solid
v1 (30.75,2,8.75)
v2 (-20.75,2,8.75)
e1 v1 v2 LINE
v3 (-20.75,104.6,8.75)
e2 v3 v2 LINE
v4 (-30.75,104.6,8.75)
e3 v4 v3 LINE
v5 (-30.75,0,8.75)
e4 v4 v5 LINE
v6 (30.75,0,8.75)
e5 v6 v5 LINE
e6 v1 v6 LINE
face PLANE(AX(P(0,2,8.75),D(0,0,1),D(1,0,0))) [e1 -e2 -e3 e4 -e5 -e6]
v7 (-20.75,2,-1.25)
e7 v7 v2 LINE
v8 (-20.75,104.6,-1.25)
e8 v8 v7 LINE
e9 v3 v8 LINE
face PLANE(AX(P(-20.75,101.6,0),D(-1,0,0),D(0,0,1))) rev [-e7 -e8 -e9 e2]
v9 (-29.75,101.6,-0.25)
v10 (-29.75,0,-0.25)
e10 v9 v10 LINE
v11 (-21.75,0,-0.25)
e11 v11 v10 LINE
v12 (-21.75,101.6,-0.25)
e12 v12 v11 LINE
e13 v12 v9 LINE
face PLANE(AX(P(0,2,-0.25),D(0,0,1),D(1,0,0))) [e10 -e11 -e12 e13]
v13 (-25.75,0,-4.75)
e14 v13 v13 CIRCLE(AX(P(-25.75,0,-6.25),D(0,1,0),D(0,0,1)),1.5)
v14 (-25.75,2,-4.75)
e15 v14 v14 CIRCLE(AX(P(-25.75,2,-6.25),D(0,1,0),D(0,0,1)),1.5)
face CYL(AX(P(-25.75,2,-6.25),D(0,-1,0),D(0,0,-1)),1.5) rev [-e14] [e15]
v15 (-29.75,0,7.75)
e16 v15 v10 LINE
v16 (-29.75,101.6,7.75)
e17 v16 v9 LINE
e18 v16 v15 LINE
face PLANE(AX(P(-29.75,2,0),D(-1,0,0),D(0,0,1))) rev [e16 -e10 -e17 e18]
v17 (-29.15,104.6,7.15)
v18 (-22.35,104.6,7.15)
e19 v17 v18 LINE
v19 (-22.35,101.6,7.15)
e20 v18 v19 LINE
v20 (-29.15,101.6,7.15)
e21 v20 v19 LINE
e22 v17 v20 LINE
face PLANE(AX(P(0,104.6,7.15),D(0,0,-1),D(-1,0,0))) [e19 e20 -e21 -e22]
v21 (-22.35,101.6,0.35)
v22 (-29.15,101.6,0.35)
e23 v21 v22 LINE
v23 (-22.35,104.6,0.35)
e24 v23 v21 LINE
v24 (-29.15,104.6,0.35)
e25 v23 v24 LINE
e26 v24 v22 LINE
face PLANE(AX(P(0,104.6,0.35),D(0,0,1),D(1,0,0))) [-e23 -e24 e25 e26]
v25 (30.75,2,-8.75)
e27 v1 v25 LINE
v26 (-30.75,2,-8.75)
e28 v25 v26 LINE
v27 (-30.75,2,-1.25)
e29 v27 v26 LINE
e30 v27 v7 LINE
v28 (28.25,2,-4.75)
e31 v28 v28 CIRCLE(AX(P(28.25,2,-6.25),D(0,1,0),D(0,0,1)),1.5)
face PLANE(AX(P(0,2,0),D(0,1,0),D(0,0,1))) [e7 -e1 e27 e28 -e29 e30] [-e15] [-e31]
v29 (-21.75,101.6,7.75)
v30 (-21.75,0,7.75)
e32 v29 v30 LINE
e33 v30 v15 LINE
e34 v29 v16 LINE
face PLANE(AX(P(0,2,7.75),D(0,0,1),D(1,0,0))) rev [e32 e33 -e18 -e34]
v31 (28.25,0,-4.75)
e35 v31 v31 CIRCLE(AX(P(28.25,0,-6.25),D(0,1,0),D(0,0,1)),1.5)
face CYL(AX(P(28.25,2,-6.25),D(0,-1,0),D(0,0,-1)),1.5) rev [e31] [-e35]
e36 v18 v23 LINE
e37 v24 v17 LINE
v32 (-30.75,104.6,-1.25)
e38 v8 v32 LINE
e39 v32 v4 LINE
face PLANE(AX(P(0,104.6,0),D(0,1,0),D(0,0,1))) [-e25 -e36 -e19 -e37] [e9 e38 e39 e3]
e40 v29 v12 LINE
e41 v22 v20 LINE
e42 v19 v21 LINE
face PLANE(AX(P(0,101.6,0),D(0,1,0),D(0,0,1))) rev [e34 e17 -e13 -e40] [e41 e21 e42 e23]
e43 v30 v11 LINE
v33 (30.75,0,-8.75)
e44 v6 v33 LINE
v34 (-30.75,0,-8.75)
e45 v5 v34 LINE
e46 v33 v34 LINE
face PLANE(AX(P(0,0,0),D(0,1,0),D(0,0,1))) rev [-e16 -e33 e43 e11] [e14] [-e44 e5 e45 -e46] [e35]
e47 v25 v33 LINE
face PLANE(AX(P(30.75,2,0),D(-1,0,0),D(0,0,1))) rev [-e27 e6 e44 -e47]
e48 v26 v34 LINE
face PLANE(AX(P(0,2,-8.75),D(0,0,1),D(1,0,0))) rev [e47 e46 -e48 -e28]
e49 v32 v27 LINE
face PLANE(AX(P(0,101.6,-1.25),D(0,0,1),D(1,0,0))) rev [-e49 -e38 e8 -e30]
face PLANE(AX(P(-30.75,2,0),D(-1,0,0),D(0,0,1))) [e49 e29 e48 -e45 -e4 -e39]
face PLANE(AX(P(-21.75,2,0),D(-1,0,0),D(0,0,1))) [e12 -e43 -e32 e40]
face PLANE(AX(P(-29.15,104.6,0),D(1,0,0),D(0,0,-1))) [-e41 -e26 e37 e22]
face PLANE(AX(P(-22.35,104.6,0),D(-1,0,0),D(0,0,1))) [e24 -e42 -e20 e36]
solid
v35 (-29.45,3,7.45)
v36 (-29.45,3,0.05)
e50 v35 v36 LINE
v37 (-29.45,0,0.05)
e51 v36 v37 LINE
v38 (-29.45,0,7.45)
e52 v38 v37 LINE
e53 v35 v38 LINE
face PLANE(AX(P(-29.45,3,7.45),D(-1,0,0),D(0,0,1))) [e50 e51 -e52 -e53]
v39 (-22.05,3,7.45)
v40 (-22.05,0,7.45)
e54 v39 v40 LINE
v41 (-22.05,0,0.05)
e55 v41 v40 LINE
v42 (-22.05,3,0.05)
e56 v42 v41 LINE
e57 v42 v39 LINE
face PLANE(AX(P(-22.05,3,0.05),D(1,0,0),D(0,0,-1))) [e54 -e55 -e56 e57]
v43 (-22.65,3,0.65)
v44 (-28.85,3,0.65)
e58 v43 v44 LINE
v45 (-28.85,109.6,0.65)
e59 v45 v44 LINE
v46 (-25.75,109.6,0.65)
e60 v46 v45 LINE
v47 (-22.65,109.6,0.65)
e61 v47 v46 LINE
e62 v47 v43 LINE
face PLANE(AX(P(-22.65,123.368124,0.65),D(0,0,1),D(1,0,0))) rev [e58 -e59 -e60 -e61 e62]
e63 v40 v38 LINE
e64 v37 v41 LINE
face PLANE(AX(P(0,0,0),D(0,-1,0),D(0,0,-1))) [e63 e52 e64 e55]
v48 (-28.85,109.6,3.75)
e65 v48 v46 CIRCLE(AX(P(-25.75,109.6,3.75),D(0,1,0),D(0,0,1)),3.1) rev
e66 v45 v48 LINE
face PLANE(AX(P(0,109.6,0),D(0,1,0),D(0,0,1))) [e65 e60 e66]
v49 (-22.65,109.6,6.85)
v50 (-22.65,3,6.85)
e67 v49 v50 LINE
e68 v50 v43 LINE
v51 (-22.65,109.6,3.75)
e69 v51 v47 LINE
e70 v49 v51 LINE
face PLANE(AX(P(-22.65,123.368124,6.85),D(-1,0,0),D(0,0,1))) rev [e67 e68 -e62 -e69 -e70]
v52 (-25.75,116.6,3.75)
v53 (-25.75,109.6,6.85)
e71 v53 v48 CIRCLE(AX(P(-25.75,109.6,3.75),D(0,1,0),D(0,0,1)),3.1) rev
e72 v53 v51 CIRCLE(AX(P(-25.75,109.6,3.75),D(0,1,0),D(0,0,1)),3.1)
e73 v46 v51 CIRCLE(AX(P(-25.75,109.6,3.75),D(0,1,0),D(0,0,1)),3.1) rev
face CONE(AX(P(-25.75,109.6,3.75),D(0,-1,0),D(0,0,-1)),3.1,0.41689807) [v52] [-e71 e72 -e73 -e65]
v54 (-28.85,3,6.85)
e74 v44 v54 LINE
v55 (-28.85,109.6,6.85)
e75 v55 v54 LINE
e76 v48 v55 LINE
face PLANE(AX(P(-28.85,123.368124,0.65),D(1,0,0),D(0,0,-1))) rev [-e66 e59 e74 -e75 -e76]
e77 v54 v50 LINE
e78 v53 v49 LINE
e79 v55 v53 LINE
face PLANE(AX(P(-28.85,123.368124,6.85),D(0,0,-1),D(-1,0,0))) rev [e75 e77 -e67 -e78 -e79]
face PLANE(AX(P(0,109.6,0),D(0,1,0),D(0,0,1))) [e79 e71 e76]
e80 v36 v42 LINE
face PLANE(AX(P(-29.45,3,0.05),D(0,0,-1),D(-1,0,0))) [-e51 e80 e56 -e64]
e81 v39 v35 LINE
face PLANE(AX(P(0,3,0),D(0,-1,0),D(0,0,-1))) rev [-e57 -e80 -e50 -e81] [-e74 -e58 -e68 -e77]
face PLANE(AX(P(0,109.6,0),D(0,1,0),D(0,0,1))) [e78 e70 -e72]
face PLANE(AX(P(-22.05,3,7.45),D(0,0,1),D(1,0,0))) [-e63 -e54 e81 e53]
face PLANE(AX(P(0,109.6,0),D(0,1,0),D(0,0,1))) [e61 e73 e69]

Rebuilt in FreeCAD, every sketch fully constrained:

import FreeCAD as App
import Part
import Sketcher
Q = App.Units.Quantity

doc = App.newDocument("Part")
body = doc.addObject("PartDesign::Body", "Body")

# Sketch on XZ plane
sketch1 = doc.addObject("Sketcher::SketchObject", "Sketch")
body.addObject(sketch1)
sketch1.AttachmentSupport = (doc.XZ_Plane, [""])
sketch1.MapMode = "FlatFace"
sketch1.addGeometry([
    Part.LineSegment(App.Vector(30.75, 8.75, 0), App.Vector(30.75, -8.75, 0)),  # 0
    Part.LineSegment(App.Vector(30.75, -8.75, 0), App.Vector(-30.75, -8.75, 0)),  # 1
    Part.LineSegment(App.Vector(-30.75, -8.75, 0), App.Vector(-30.75, 8.75, 0)),  # 2
    Part.LineSegment(App.Vector(-30.75, 8.75, 0), App.Vector(30.75, 8.75, 0)),  # 3
    Part.Circle(App.Vector(-25.75, -6.25, 0), App.Vector(0, 0, 1), 1.5),  # 4
    Part.Circle(App.Vector(28.25, -6.25, 0), App.Vector(0, 0, 1), 1.5),  # 5
    Part.LineSegment(App.Vector(-29.75, -0.25, 0), App.Vector(-21.75, -0.25, 0)),  # 6
    Part.LineSegment(App.Vector(-21.75, -0.25, 0), App.Vector(-21.75, 7.75, 0)),  # 7
    Part.LineSegment(App.Vector(-21.75, 7.75, 0), App.Vector(-29.75, 7.75, 0)),  # 8
    Part.LineSegment(App.Vector(-29.75, 7.75, 0), App.Vector(-29.75, -0.25, 0)),  # 9
], False)
sketch1.addConstraint([
    Sketcher.Constraint("Coincident", 0, 2, 1, 1),
    Sketcher.Constraint("Coincident", 1, 2, 2, 1),
    Sketcher.Constraint("Coincident", 2, 2, 3, 1),
    Sketcher.Constraint("Coincident", 3, 2, 0, 1),
    Sketcher.Constraint("Coincident", 6, 2, 7, 1),
    Sketcher.Constraint("Coincident", 7, 2, 8, 1),
    Sketcher.Constraint("Coincident", 8, 2, 9, 1),
    Sketcher.Constraint("Coincident", 9, 2, 6, 1),
    Sketcher.Constraint("Vertical", 0),
    Sketcher.Constraint("Horizontal", 1),
    Sketcher.Constraint("Vertical", 2),
    Sketcher.Constraint("Horizontal", 3),
    Sketcher.Constraint("Horizontal", 6),
    Sketcher.Constraint("Vertical", 7),
    Sketcher.Constraint("Horizontal", 8),
    Sketcher.Constraint("Vertical", 9),
    Sketcher.Constraint("Equal", 4, 5),
    Sketcher.Constraint("Symmetric", 0, 2, 2, 2, -1, 1),
    Sketcher.Constraint("Horizontal", 4, 3, 5, 3),
    Sketcher.Constraint("Equal", 8, 7),
    Sketcher.Constraint("Diameter", 4, Q("3 mm")),
    Sketcher.Constraint("DistanceX", 6, 1, 6, 2, Q("8 mm")),
    Sketcher.Constraint("DistanceX", 1, 2, 1, 1, Q("61.5 mm")),
    Sketcher.Constraint("DistanceY", 0, 2, 0, 1, Q("17.5 mm")),
    Sketcher.Constraint("DistanceX", 4, 3, 5, 3, Q("54 mm")),
    Sketcher.Constraint("DistanceX", 1, 2, 4, 3, Q("5 mm")),
    Sketcher.Constraint("DistanceY", 4, 3, 2, 2, Q("15 mm")),
    Sketcher.Constraint("DistanceX", 4, 3, 6, 2, Q("4 mm")),
    Sketcher.Constraint("DistanceY", 4, 3, 6, 2, Q("6 mm")),
])
pad1 = doc.addObject("PartDesign::Pad", "Pad")
body.addObject(pad1)
pad1.Profile = sketch1
pad1.Length = 2
pad1.Reversed = True

# Sketch on XZ plane
sketch2 = doc.addObject("Sketcher::SketchObject", "Sketch001")
body.addObject(sketch2)
sketch2.AttachmentSupport = (doc.XZ_Plane, [""])
sketch2.MapMode = "FlatFace"
sketch2.addGeometry([
    Part.LineSegment(App.Vector(-30.75, -1.25, 0), App.Vector(-30.75, 8.75, 0)),  # 0
    Part.LineSegment(App.Vector(-30.75, 8.75, 0), App.Vector(-20.75, 8.75, 0)),  # 1
    Part.LineSegment(App.Vector(-20.75, 8.75, 0), App.Vector(-20.75, -1.25, 0)),  # 2
    Part.LineSegment(App.Vector(-20.75, -1.25, 0), App.Vector(-30.75, -1.25, 0)),  # 3
    Part.LineSegment(App.Vector(-21.75, 7.75, 0), App.Vector(-29.75, 7.75, 0)),  # 4
    Part.LineSegment(App.Vector(-29.75, 7.75, 0), App.Vector(-29.75, -0.25, 0)),  # 5
    Part.LineSegment(App.Vector(-29.75, -0.25, 0), App.Vector(-21.75, -0.25, 0)),  # 6
    Part.LineSegment(App.Vector(-21.75, -0.25, 0), App.Vector(-21.75, 7.75, 0)),  # 7
], False)
sketch2.addConstraint([
    Sketcher.Constraint("Coincident", 0, 2, 1, 1),
    Sketcher.Constraint("Coincident", 1, 2, 2, 1),
    Sketcher.Constraint("Coincident", 2, 2, 3, 1),
    Sketcher.Constraint("Coincident", 3, 2, 0, 1),
    Sketcher.Constraint("Coincident", 4, 2, 5, 1),
    Sketcher.Constraint("Coincident", 5, 2, 6, 1),
    Sketcher.Constraint("Coincident", 6, 2, 7, 1),
    Sketcher.Constraint("Coincident", 7, 2, 4, 1),
    Sketcher.Constraint("Vertical", 0),
    Sketcher.Constraint("Horizontal", 1),
    Sketcher.Constraint("Vertical", 2),
    Sketcher.Constraint("Horizontal", 3),
    Sketcher.Constraint("Horizontal", 4),
    Sketcher.Constraint("Vertical", 5),
    Sketcher.Constraint("Horizontal", 6),
    Sketcher.Constraint("Vertical", 7),
    Sketcher.Constraint("Equal", 3, 0),
    Sketcher.Constraint("Equal", 6, 5),
    Sketcher.Constraint("DistanceX", 1, 1, 1, 2, Q("10 mm")),
    Sketcher.Constraint("DistanceX", 4, 2, 4, 1, Q("8 mm")),
    Sketcher.Constraint("DistanceX", 0, 2, 4, 2, Q("1 mm")),
    Sketcher.Constraint("DistanceY", 4, 2, 0, 2, Q("1 mm")),
    Sketcher.Constraint("DistanceX", 0, 2, -1, 1, Q("30.75 mm")),
    Sketcher.Constraint("DistanceY", -1, 1, 0, 2, Q("8.75 mm")),
])
pad2 = doc.addObject("PartDesign::Pad", "Pad001")
body.addObject(pad2)
pad2.Profile = sketch2
pad2.Length = 101.6
pad2.Reversed = True

# Sketch on XZ plane
sketch3 = doc.addObject("Sketcher::SketchObject", "Sketch002")
body.addObject(sketch3)
sketch3.AttachmentSupport = (doc.XZ_Plane, [""])
sketch3.MapMode = "FlatFace"
sketch3.AttachmentOffset = App.Placement(App.Vector(0, 0, -101.6), App.Rotation())
sketch3.addGeometry([
    Part.LineSegment(App.Vector(-30.75, -1.25, 0), App.Vector(-30.75, 8.75, 0)),  # 0
    Part.LineSegment(App.Vector(-30.75, 8.75, 0), App.Vector(-20.75, 8.75, 0)),  # 1
    Part.LineSegment(App.Vector(-20.75, 8.75, 0), App.Vector(-20.75, -1.25, 0)),  # 2
    Part.LineSegment(App.Vector(-20.75, -1.25, 0), App.Vector(-30.75, -1.25, 0)),  # 3
    Part.LineSegment(App.Vector(-22.35, 7.15, 0), App.Vector(-29.15, 7.15, 0)),  # 4
    Part.LineSegment(App.Vector(-29.15, 7.15, 0), App.Vector(-29.15, 0.35, 0)),  # 5
    Part.LineSegment(App.Vector(-29.15, 0.35, 0), App.Vector(-22.35, 0.35, 0)),  # 6
    Part.LineSegment(App.Vector(-22.35, 0.35, 0), App.Vector(-22.35, 7.15, 0)),  # 7
], False)
sketch3.addConstraint([
    Sketcher.Constraint("Coincident", 0, 2, 1, 1),
    Sketcher.Constraint("Coincident", 1, 2, 2, 1),
    Sketcher.Constraint("Coincident", 2, 2, 3, 1),
    Sketcher.Constraint("Coincident", 3, 2, 0, 1),
    Sketcher.Constraint("Coincident", 4, 2, 5, 1),
    Sketcher.Constraint("Coincident", 5, 2, 6, 1),
    Sketcher.Constraint("Coincident", 6, 2, 7, 1),
    Sketcher.Constraint("Coincident", 7, 2, 4, 1),
    Sketcher.Constraint("Vertical", 0),
    Sketcher.Constraint("Horizontal", 1),
    Sketcher.Constraint("Vertical", 2),
    Sketcher.Constraint("Horizontal", 3),
    Sketcher.Constraint("Horizontal", 4),
    Sketcher.Constraint("Vertical", 5),
    Sketcher.Constraint("Horizontal", 6),
    Sketcher.Constraint("Vertical", 7),
    Sketcher.Constraint("Equal", 3, 0),
    Sketcher.Constraint("Equal", 6, 5),
    Sketcher.Constraint("DistanceX", 1, 1, 1, 2, Q("10 mm")),
    Sketcher.Constraint("DistanceX", 4, 2, 4, 1, Q("6.8 mm")),
    Sketcher.Constraint("DistanceX", 0, 2, 4, 2, Q("1.6 mm")),
    Sketcher.Constraint("DistanceY", 4, 2, 0, 2, Q("1.6 mm")),
    Sketcher.Constraint("DistanceX", 0, 2, -1, 1, Q("30.75 mm")),
    Sketcher.Constraint("DistanceY", -1, 1, 0, 2, Q("8.75 mm")),
])
pad3 = doc.addObject("PartDesign::Pad", "Pad002")
body.addObject(pad3)
pad3.Profile = sketch3
pad3.Length = 3
pad3.Reversed = True
body2 = doc.addObject("PartDesign::Body", "Body001")

# Sketch on XZ plane
sketch4 = doc.addObject("Sketcher::SketchObject", "Sketch003")
body2.addObject(sketch4)
sketch4.AttachmentSupport = (doc.getObject("XZ_Plane001"), [""])
sketch4.MapMode = "FlatFace"
sketch4.addGeometry([
    Part.LineSegment(App.Vector(-29.45, 7.45, 0), App.Vector(-29.45, 0.05, 0)),
    Part.LineSegment(App.Vector(-29.45, 0.05, 0), App.Vector(-22.05, 0.05, 0)),
    Part.LineSegment(App.Vector(-22.05, 0.05, 0), App.Vector(-22.05, 7.45, 0)),
    Part.LineSegment(App.Vector(-22.05, 7.45, 0), App.Vector(-29.45, 7.45, 0)),
], False)
sketch4.addConstraint([
    Sketcher.Constraint("Coincident", 0, 2, 1, 1),
    Sketcher.Constraint("Coincident", 1, 2, 2, 1),
    Sketcher.Constraint("Coincident", 2, 2, 3, 1),
    Sketcher.Constraint("Coincident", 3, 2, 0, 1),
    Sketcher.Constraint("Vertical", 0),
    Sketcher.Constraint("Horizontal", 1),
    Sketcher.Constraint("Vertical", 2),
    Sketcher.Constraint("Horizontal", 3),
    Sketcher.Constraint("Equal", 3, 0),
    Sketcher.Constraint("DistanceX", 1, 1, 1, 2, Q("7.4 mm")),
    Sketcher.Constraint("DistanceX", 0, 2, -1, 1, Q("29.45 mm")),
    Sketcher.Constraint("DistanceY", -1, 1, 0, 2, Q("0.05 mm")),
])
pad4 = doc.addObject("PartDesign::Pad", "Pad003")
body2.addObject(pad4)
pad4.Profile = sketch4
pad4.Length = 3
pad4.Reversed = True

# Sketch on XZ plane
sketch5 = doc.addObject("Sketcher::SketchObject", "Sketch004")
body2.addObject(sketch5)
sketch5.AttachmentSupport = (doc.getObject("XZ_Plane001"), [""])
sketch5.MapMode = "FlatFace"
sketch5.AttachmentOffset = App.Placement(App.Vector(0, 0, -3), App.Rotation())
sketch5.addGeometry([
    Part.LineSegment(App.Vector(-28.85, 0.65, 0), App.Vector(-28.85, 6.85, 0)),
    Part.LineSegment(App.Vector(-28.85, 6.85, 0), App.Vector(-22.65, 6.85, 0)),
    Part.LineSegment(App.Vector(-22.65, 6.85, 0), App.Vector(-22.65, 0.65, 0)),
    Part.LineSegment(App.Vector(-22.65, 0.65, 0), App.Vector(-28.85, 0.65, 0)),
], False)
sketch5.addConstraint([
    Sketcher.Constraint("Coincident", 0, 2, 1, 1),
    Sketcher.Constraint("Coincident", 1, 2, 2, 1),
    Sketcher.Constraint("Coincident", 2, 2, 3, 1),
    Sketcher.Constraint("Coincident", 3, 2, 0, 1),
    Sketcher.Constraint("Vertical", 0),
    Sketcher.Constraint("Horizontal", 1),
    Sketcher.Constraint("Vertical", 2),
    Sketcher.Constraint("Horizontal", 3),
    Sketcher.Constraint("Equal", 3, 0),
    Sketcher.Constraint("DistanceX", 1, 1, 1, 2, Q("6.2 mm")),
    Sketcher.Constraint("DistanceX", 0, 2, -1, 1, Q("28.85 mm")),
    Sketcher.Constraint("DistanceY", -1, 1, 0, 2, Q("6.85 mm")),
])
pad5 = doc.addObject("PartDesign::Pad", "Pad004")
body2.addObject(pad5)
pad5.Profile = sketch5
pad5.Length = 106.6
pad5.Reversed = True

# Sketch on XY plane
sketch6 = doc.addObject("Sketcher::SketchObject", "Sketch005")
body2.addObject(sketch6)
sketch6.AttachmentSupport = (doc.getObject("XY_Plane001"), [""])
sketch6.MapMode = "FlatFace"
sketch6.AttachmentOffset = App.Placement(App.Vector(0, 0, 3.75), App.Rotation())
sketch6.addGeometry([
    Part.LineSegment(App.Vector(-28.85, 109.6, 0), App.Vector(-25.75, 116.6, 0)),
    Part.LineSegment(App.Vector(-25.75, 116.6, 0), App.Vector(-25.75, 109.6, 0)),
    Part.LineSegment(App.Vector(-25.75, 109.6, 0), App.Vector(-28.85, 109.6, 0)),
], False)
sketch6.addGeometry(Part.LineSegment(App.Vector(-25.75, 116.6, 0), App.Vector(-25.75, 109.6, 0)), True)  # axis
sketch6.addConstraint([
    Sketcher.Constraint("Coincident", 0, 2, 1, 1),
    Sketcher.Constraint("Coincident", 1, 2, 2, 1),
    Sketcher.Constraint("Coincident", 2, 2, 0, 1),
    Sketcher.Constraint("Vertical", 1),
    Sketcher.Constraint("Horizontal", 2),
    Sketcher.Constraint("Vertical", 3),
    Sketcher.Constraint("Coincident", 3, 1, 0, 2),
    Sketcher.Constraint("Horizontal", 2, 2, 3, 2),
    Sketcher.Constraint("DistanceY", 1, 2, 1, 1, Q("7 mm")),
    Sketcher.Constraint("DistanceX", 2, 2, 2, 1, Q("3.1 mm")),
    Sketcher.Constraint("DistanceY", -1, 1, 0, 2, Q("116.6 mm")),
    Sketcher.Constraint("DistanceX", 0, 2, -1, 1, Q("25.75 mm")),
])
revolution = doc.addObject("PartDesign::Revolution", "Revolution")
body2.addObject(revolution)
revolution.Profile = sketch6
revolution.ReferenceAxis = (sketch6, ["Axis0"])
revolution.Angle = 360

doc.recompute()
